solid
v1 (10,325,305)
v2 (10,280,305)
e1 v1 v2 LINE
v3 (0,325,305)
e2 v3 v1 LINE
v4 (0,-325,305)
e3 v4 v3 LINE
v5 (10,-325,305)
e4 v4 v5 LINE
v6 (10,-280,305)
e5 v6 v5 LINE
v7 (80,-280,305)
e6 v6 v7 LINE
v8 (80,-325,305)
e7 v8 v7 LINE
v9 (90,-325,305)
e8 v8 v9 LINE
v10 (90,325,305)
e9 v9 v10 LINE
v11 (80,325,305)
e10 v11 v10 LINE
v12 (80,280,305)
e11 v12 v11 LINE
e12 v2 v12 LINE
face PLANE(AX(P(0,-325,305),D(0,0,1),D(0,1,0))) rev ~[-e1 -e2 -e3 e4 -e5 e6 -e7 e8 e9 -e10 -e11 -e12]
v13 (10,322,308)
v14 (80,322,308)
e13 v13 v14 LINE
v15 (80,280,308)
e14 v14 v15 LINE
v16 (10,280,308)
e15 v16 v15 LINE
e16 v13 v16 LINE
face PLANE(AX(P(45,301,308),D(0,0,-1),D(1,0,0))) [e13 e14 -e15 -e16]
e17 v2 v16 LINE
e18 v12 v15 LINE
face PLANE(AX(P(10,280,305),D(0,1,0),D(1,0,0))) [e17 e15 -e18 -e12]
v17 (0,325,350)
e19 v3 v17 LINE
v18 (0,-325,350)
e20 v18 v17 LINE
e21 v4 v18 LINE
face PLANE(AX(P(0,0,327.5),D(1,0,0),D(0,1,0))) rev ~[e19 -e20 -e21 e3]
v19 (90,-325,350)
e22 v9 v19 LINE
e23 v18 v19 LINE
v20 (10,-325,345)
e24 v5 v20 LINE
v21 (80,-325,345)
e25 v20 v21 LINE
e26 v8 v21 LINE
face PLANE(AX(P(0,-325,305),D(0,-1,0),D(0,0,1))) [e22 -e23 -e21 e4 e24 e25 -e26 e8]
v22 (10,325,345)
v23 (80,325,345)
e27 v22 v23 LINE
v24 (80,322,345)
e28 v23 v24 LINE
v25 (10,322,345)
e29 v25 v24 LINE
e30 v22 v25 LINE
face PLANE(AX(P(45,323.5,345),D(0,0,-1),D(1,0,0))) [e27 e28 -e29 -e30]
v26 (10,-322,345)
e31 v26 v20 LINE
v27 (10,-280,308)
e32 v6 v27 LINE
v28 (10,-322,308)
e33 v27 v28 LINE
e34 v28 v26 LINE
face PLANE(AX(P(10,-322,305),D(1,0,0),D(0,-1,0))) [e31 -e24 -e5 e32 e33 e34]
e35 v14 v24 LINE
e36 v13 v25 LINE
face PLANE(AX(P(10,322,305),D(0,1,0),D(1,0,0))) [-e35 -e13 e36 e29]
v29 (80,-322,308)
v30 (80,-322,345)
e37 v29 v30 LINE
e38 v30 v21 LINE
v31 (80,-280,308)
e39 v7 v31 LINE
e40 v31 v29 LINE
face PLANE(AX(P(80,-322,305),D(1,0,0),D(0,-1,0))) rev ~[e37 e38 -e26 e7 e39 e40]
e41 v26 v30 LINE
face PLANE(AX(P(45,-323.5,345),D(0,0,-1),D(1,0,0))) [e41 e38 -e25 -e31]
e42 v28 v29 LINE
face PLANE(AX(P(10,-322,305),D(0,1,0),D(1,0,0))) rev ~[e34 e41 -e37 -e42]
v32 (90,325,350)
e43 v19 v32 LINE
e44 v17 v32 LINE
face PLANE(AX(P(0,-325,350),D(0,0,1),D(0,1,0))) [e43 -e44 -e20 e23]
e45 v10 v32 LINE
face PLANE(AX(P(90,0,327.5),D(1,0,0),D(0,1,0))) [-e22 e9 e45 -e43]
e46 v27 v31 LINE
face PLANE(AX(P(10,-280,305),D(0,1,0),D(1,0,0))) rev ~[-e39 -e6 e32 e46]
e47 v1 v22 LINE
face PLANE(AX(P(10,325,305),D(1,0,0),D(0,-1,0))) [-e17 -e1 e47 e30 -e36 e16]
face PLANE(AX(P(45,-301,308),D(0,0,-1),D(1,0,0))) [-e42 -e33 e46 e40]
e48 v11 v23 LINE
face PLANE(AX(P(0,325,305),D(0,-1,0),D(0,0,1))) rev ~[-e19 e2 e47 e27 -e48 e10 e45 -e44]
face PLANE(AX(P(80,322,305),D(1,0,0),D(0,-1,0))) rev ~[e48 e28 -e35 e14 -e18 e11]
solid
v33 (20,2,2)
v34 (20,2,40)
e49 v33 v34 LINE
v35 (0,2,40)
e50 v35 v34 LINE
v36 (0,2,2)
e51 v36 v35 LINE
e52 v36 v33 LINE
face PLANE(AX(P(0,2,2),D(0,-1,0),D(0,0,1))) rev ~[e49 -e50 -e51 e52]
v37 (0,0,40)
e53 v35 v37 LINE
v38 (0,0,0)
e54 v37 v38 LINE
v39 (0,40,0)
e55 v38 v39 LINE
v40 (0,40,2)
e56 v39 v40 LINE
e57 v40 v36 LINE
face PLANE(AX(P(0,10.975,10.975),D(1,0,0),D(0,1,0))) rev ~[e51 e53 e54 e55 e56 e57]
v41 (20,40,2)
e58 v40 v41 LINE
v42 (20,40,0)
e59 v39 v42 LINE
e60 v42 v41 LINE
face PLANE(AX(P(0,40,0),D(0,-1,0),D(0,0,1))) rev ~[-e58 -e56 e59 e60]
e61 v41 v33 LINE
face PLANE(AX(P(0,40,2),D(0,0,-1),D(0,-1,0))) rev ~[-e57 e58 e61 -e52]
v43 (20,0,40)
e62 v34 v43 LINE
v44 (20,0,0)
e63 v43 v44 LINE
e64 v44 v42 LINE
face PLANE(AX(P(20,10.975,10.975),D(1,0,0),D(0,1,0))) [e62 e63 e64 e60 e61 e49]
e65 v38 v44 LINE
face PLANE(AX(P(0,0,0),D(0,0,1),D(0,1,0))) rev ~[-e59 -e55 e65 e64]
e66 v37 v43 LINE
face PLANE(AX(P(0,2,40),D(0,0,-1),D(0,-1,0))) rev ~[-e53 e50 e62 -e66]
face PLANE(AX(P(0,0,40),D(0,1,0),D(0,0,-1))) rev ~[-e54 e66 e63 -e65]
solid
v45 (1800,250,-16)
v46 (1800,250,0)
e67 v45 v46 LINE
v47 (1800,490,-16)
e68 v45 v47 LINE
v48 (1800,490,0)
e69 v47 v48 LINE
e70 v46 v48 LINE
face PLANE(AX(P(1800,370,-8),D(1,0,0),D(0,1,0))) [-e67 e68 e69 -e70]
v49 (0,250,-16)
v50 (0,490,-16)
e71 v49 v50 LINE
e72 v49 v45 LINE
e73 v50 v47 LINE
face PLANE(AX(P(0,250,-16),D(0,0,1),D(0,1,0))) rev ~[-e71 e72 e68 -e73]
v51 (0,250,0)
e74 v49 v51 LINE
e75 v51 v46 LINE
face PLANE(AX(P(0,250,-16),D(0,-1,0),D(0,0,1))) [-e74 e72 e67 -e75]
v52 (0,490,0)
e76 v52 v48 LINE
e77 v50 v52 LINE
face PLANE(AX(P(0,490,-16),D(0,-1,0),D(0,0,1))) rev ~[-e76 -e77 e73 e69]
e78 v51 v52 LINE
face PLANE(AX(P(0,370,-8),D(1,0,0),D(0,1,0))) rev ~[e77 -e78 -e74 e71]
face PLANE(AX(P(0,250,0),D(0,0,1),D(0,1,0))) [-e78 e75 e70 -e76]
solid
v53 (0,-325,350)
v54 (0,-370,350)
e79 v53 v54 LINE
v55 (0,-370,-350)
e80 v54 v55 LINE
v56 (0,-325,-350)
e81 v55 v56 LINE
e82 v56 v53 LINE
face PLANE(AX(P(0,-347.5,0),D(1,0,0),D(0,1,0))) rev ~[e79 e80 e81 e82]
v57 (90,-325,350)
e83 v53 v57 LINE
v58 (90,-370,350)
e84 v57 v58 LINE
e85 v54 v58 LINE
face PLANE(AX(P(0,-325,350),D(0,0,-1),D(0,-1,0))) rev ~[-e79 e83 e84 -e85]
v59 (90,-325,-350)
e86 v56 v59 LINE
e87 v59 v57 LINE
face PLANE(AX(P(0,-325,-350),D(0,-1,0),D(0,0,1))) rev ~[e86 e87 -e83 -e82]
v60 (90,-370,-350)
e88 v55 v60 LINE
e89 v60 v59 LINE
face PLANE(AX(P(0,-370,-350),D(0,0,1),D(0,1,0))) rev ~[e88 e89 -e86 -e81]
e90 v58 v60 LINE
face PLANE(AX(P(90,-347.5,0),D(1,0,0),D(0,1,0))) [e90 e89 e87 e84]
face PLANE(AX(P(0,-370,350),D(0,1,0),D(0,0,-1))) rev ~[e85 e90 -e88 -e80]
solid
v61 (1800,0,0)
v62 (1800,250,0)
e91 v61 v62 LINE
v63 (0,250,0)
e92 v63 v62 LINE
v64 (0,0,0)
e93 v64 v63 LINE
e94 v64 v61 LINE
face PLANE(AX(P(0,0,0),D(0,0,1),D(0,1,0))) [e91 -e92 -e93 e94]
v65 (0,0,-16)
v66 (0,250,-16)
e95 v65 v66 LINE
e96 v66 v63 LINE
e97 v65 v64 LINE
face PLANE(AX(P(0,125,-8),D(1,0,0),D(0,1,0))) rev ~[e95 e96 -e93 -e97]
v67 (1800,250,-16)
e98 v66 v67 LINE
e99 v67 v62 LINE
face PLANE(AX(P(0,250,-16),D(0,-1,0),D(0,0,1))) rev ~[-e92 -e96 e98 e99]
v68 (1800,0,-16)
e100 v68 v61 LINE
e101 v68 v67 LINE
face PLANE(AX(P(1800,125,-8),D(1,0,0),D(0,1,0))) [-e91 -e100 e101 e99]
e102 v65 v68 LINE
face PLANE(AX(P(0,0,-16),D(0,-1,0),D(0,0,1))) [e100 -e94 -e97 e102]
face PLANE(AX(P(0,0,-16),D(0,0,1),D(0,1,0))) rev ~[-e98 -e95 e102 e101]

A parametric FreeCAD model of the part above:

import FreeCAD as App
import Part
import Sketcher
from FreeCAD import Vector

doc = App.newDocument("Part")
params = doc.addObject("Spreadsheet::Sheet", "Params")
for row, (alias, value) in enumerate([
    ("sketch1_width", "45 mm"),
    ("sketch1_height", "700 mm"),
    ("pad1_length", "90 mm"),
    ("sketch2_width", "650 mm"),
    ("sketch2_height", "45 mm"),
    ("pad2_length", "90 mm"),
    ("sketch3_width", "70 mm"),
    ("sketch3_height", "3 mm"),
    ("pocket1_length", "40 mm"),
    ("sketch4_width", "70 mm"),
    ("sketch4_height", "42 mm"),
    ("pocket2_length", "3 mm"),
    ("sketch5_width", "2 mm"),
    ("sketch5_width2", "40 mm"),
    ("pad3_length", "20 mm"),
    ("sketch6_width", "250 mm"),
    ("sketch6_height", "16 mm"),
    ("pad4_length", "1800 mm"),
    ("sketch7_width", "240 mm"),
    ("sketch7_height", "16 mm"),
    ("pad5_length", "1800 mm"),
], start=1):
    params.set(f"A{row}", alias)
    params.set(f"B{row}", "=" + value)
    params.setAlias(f"B{row}", alias)

body = doc.addObject("PartDesign::Body", "Body")

sketch1 = body.newObject("Sketcher::SketchObject", "Sketch")
sketch1.AttachmentSupport = (doc.getObject("YZ_Plane"), [""])
sketch1.MapMode = "FlatFace"
sketch1.addGeometry([
    Part.LineSegment(Vector(-325, 350, 0), Vector(-370, 350, 0)),
    Part.LineSegment(Vector(-370, 350, 0), Vector(-370, -350, 0)),
    Part.LineSegment(Vector(-370, -350, 0), Vector(-325, -350, 0)),
    Part.LineSegment(Vector(-325, -350, 0), Vector(-325, 350, 0)),
], False)
sketch1.addConstraint([
    Sketcher.Constraint("Coincident", 0, 2, 1, 1),
    Sketcher.Constraint("Coincident", 1, 2, 2, 1),
    Sketcher.Constraint("Coincident", 2, 2, 3, 1),
    Sketcher.Constraint("Coincident", 3, 2, 0, 1),
    Sketcher.Constraint("Horizontal", 0),
    Sketcher.Constraint("Vertical", 1),
    Sketcher.Constraint("Horizontal", 2),
    Sketcher.Constraint("Vertical", 3),
    Sketcher.Constraint("DistanceX", 0, 2, 0, 1, 45.0),
    Sketcher.Constraint("DistanceY", 1, 2, 1, 1, 700.0),
    Sketcher.Constraint("DistanceX", 0, 2, -1, 1, 370.0),
    Sketcher.Constraint("DistanceY", -1, 1, 0, 2, 350.0),
])
sketch1.setExpression("Constraints[8]", "Params.sketch1_width")
sketch1.setExpression("Constraints[9]", "Params.sketch1_height")
pad1 = body.newObject("PartDesign::Pad", "Pad")
pad1.Profile = sketch1
pad1.setExpression("Length", "Params.pad1_length")
body2 = doc.addObject("PartDesign::Body", "Body001")

sketch2 = body2.newObject("Sketcher::SketchObject", "Sketch001")
sketch2.AttachmentSupport = (doc.getObject("YZ_Plane001"), [""])
sketch2.MapMode = "FlatFace"
sketch2.addGeometry([
    Part.LineSegment(Vector(-325, 350, 0), Vector(-325, 305, 0)),
    Part.LineSegment(Vector(-325, 305, 0), Vector(325, 305, 0)),
    Part.LineSegment(Vector(325, 305, 0), Vector(325, 350, 0)),
    Part.LineSegment(Vector(325, 350, 0), Vector(-325, 350, 0)),
], False)
sketch2.addConstraint([
    Sketcher.Constraint("Coincident", 0, 2, 1, 1),
    Sketcher.Constraint("Coincident", 1, 2, 2, 1),
    Sketcher.Constraint("Coincident", 2, 2, 3, 1),
    Sketcher.Constraint("Coincident", 3, 2, 0, 1),
    Sketcher.Constraint("Vertical", 0),
    Sketcher.Constraint("Horizontal", 1),
    Sketcher.Constraint("Vertical", 2),
    Sketcher.Constraint("Horizontal", 3),
    Sketcher.Constraint("DistanceX", 1, 1, 1, 2, 650.0),
    Sketcher.Constraint("DistanceY", 0, 2, 0, 1, 45.0),
    Sketcher.Constraint("DistanceX", 0, 2, -1, 1, 325.0),
    Sketcher.Constraint("DistanceY", -1, 1, 0, 2, 305.0),
])
sketch2.setExpression("Constraints[8]", "Params.sketch2_width")
sketch2.setExpression("Constraints[9]", "Params.sketch2_height")
pad2 = body2.newObject("PartDesign::Pad", "Pad001")
pad2.Profile = sketch2
pad2.setExpression("Length", "Params.pad2_length")

sketch3 = body2.newObject("Sketcher::SketchObject", "Sketch002")
sketch3.AttachmentSupport = (doc.getObject("XY_Plane001"), [""])
sketch3.MapMode = "FlatFace"
sketch3.AttachmentOffset = App.Placement(Vector(0, 0, 305), App.Rotation())
sketch3.addGeometry([
    Part.LineSegment(Vector(10, -325, 0), Vector(10, -322, 0)),
    Part.LineSegment(Vector(10, -322, 0), Vector(80, -322, 0)),
    Part.LineSegment(Vector(80, -322, 0), Vector(80, -325, 0)),
    Part.LineSegment(Vector(80, -325, 0), Vector(10, -325, 0)),
    Part.LineSegment(Vector(10, 322, 0), Vector(10, 325, 0)),
    Part.LineSegment(Vector(10, 325, 0), Vector(80, 325, 0)),
    Part.LineSegment(Vector(80, 325, 0), Vector(80, 322, 0)),
    Part.LineSegment(Vector(80, 322, 0), Vector(10, 322, 0)),
], False)
sketch3.addConstraint([
    Sketcher.Constraint("Coincident", 0, 2, 1, 1),
    Sketcher.Constraint("Coincident", 1, 2, 2, 1),
    Sketcher.Constraint("Coincident", 2, 2, 3, 1),
    Sketcher.Constraint("Coincident", 3, 2, 0, 1),
    Sketcher.Constraint("Coincident", 4, 2, 5, 1),
    Sketcher.Constraint("Coincident", 5, 2, 6, 1),
    Sketcher.Constraint("Coincident", 6, 2, 7, 1),
    Sketcher.Constraint("Coincident", 7, 2, 4, 1),
    Sketcher.Constraint("Vertical", 0),
    Sketcher.Constraint("Horizontal", 1),
    Sketcher.Constraint("Vertical", 2),
    Sketcher.Constraint("Horizontal", 3),
    Sketcher.Constraint("Vertical", 4),
    Sketcher.Constraint("Horizontal", 5),
    Sketcher.Constraint("Vertical", 6),
    Sketcher.Constraint("Horizontal", 7),
    Sketcher.Constraint("Symmetric", 3, 2, 4, 2, -1),
    Sketcher.Constraint("Symmetric", 1, 2, 6, 2, -1),
    Sketcher.Constraint("DistanceX", 1, 1, 1, 2, 70.0),
    Sketcher.Constraint("DistanceY", 0, 1, 0, 2, 3.0),
    Sketcher.Constraint("DistanceX", -1, 1, 0, 2, 10.0),
    Sketcher.Constraint("DistanceY", 0, 2, -1, 1, 322.0),
])
sketch3.setExpression("Constraints[18]", "Params.sketch3_width")
sketch3.setExpression("Constraints[19]", "Params.sketch3_height")
pocket1 = body2.newObject("PartDesign::Pocket", "Pocket")
pocket1.Profile = sketch3
pocket1.setExpression("Length", "Params.pocket1_length")
pocket1.Reversed = True

sketch4 = body2.newObject("Sketcher::SketchObject", "Sketch003")
sketch4.AttachmentSupport = (doc.getObject("XY_Plane001"), [""])
sketch4.MapMode = "FlatFace"
sketch4.AttachmentOffset = App.Placement(Vector(0, 0, 305), App.Rotation())
sketch4.addGeometry([
    Part.LineSegment(Vector(10, -322, 0), Vector(10, -280, 0)),
    Part.LineSegment(Vector(10, -280, 0), Vector(80, -280, 0)),
    Part.LineSegment(Vector(80, -280, 0), Vector(80, -322, 0)),
    Part.LineSegment(Vector(80, -322, 0), Vector(10, -322, 0)),
    Part.LineSegment(Vector(10, 280, 0), Vector(10, 322, 0)),
    Part.LineSegment(Vector(10, 322, 0), Vector(80, 322, 0)),
    Part.LineSegment(Vector(80, 322, 0), Vector(80, 280, 0)),
    Part.LineSegment(Vector(80, 280, 0), Vector(10, 280, 0)),
], False)
sketch4.addConstraint([
    Sketcher.Constraint("Coincident", 0, 2, 1, 1),
    Sketcher.Constraint("Coincident", 1, 2, 2, 1),
    Sketcher.Constraint("Coincident", 2, 2, 3, 1),
    Sketcher.Constraint("Coincident", 3, 2, 0, 1),
    Sketcher.Constraint("Coincident", 4, 2, 5, 1),
    Sketcher.Constraint("Coincident", 5, 2, 6, 1),
    Sketcher.Constraint("Coincident", 6, 2, 7, 1),
    Sketcher.Constraint("Coincident", 7, 2, 4, 1),
    Sketcher.Constraint("Vertical", 0),
    Sketcher.Constraint("Horizontal", 1),
    Sketcher.Constraint("Vertical", 2),
    Sketcher.Constraint("Horizontal", 3),
    Sketcher.Constraint("Vertical", 4),
    Sketcher.Constraint("Horizontal", 5),
    Sketcher.Constraint("Vertical", 6),
    Sketcher.Constraint("Horizontal", 7),
    Sketcher.Constraint("Symmetric", 3, 2, 4, 2, -1),
    Sketcher.Constraint("Symmetric", 1, 2, 6, 2, -1),
    Sketcher.Constraint("DistanceX", 1, 1, 1, 2, 70.0),
    Sketcher.Constraint("DistanceY", 0, 1, 0, 2, 42.0),
    Sketcher.Constraint("DistanceX", -1, 1, 0, 2, 10.0),
    Sketcher.Constraint("DistanceY", 0, 2, -1, 1, 280.0),
])
sketch4.setExpression("Constraints[18]", "Params.sketch4_width")
sketch4.setExpression("Constraints[19]", "Params.sketch4_height")
pocket2 = body2.newObject("PartDesign::Pocket", "Pocket001")
pocket2.Profile = sketch4
pocket2.setExpression("Length", "Params.pocket2_length")
pocket2.Reversed = True
body3 = doc.addObject("PartDesign::Body", "Body002")

sketch5 = body3.newObject("Sketcher::SketchObject", "Sketch004")
sketch5.AttachmentSupport = (doc.getObject("YZ_Plane002"), [""])
sketch5.MapMode = "FlatFace"
sketch5.addGeometry([
    Part.LineSegment(Vector(2, 40, 0), Vector(0, 40, 0)),
    Part.LineSegment(Vector(0, 40, 0), Vector(0, 0, 0)),
    Part.LineSegment(Vector(0, 0, 0), Vector(40, 0, 0)),
    Part.LineSegment(Vector(40, 0, 0), Vector(40, 2, 0)),
    Part.LineSegment(Vector(40, 2, 0), Vector(2, 2, 0)),
    Part.LineSegment(Vector(2, 2, 0), Vector(2, 40, 0)),
], False)
sketch5.addConstraint([
    Sketcher.Constraint("Coincident", 0, 2, 1, 1),
    Sketcher.Constraint("Coincident", 1, 2, 2, 1),
    Sketcher.Constraint("Coincident", 2, 2, 3, 1),
    Sketcher.Constraint("Coincident", 3, 2, 4, 1),
    Sketcher.Constraint("Coincident", 4, 2, 5, 1),
    Sketcher.Constraint("Coincident", 5, 2, 0, 1),
    Sketcher.Constraint("Horizontal", 0),
    Sketcher.Constraint("Vertical", 1),
    Sketcher.Constraint("Horizontal", 2),
    Sketcher.Constraint("Vertical", 3),
    Sketcher.Constraint("Horizontal", 4),
    Sketcher.Constraint("Vertical", 5),
    Sketcher.Constraint("Coincident", 1, 2, -1, 1),
    Sketcher.Constraint("Equal", 2, 1),
    Sketcher.Constraint("Equal", 0, 3),
    Sketcher.Constraint("DistanceX", 0, 2, 0, 1, 2.0),
    Sketcher.Constraint("DistanceX", 2, 1, 2, 2, 40.0),
])
sketch5.setExpression("Constraints[15]", "Params.sketch5_width")
sketch5.setExpression("Constraints[16]", "Params.sketch5_width2")
pad3 = body3.newObject("PartDesign::Pad", "Pad002")
pad3.Profile = sketch5
pad3.setExpression("Length", "Params.pad3_length")
body4 = doc.addObject("PartDesign::Body", "Body003")

sketch6 = body4.newObject("Sketcher::SketchObject", "Sketch005")
sketch6.AttachmentSupport = (doc.getObject("YZ_Plane003"), [""])
sketch6.MapMode = "FlatFace"
sketch6.addGeometry([
    Part.LineSegment(Vector(0, 0, 0), Vector(0, -16, 0)),
    Part.LineSegment(Vector(0, -16, 0), Vector(250, -16, 0)),
    Part.LineSegment(Vector(250, -16, 0), Vector(250, 0, 0)),
    Part.LineSegment(Vector(250, 0, 0), Vector(0, 0, 0)),
], False)
sketch6.addConstraint([
    Sketcher.Constraint("Coincident", 0, 2, 1, 1),
    Sketcher.Constraint("Coincident", 1, 2, 2, 1),
    Sketcher.Constraint("Coincident", 2, 2, 3, 1),
    Sketcher.Constraint("Coincident", 3, 2, 0, 1),
    Sketcher.Constraint("Vertical", 0),
    Sketcher.Constraint("Horizontal", 1),
    Sketcher.Constraint("Vertical", 2),
    Sketcher.Constraint("Horizontal", 3),
    Sketcher.Constraint("Coincident", 3, 2, -1, 1),
    Sketcher.Constraint("DistanceX", 1, 1, 1, 2, 250.0),
    Sketcher.Constraint("DistanceY", 0, 2, 0, 1, 16.0),
])
sketch6.setExpression("Constraints[9]", "Params.sketch6_width")
sketch6.setExpression("Constraints[10]", "Params.sketch6_height")
pad4 = body4.newObject("PartDesign::Pad", "Pad003")
pad4.Profile = sketch6
pad4.setExpression("Length", "Params.pad4_length")
body5 = doc.addObject("PartDesign::Body", "Body004")

sketch7 = body5.newObject("Sketcher::SketchObject", "Sketch006")
sketch7.AttachmentSupport = (doc.getObject("YZ_Plane004"), [""])
sketch7.MapMode = "FlatFace"
sketch7.addGeometry([
    Part.LineSegment(Vector(250, 0, 0), Vector(250, -16, 0)),
    Part.LineSegment(Vector(250, -16, 0), Vector(490, -16, 0)),
    Part.LineSegment(Vector(490, -16, 0), Vector(490, 0, 0)),
    Part.LineSegment(Vector(490, 0, 0), Vector(250, 0, 0)),
], False)
sketch7.addConstraint([
    Sketcher.Constraint("Coincident", 0, 2, 1, 1),
    Sketcher.Constraint("Coincident", 1, 2, 2, 1),
    Sketcher.Constraint("Coincident", 2, 2, 3, 1),
    Sketcher.Constraint("Coincident", 3, 2, 0, 1),
    Sketcher.Constraint("Vertical", 0),
    Sketcher.Constraint("Horizontal", 1),
    Sketcher.Constraint("Vertical", 2),
    Sketcher.Constraint("Horizontal", 3),
    Sketcher.Constraint("PointOnObject", 2, 2, -1),
    Sketcher.Constraint("DistanceX", 1, 1, 1, 2, 240.0),
    Sketcher.Constraint("DistanceY", 0, 2, 0, 1, 16.0),
    Sketcher.Constraint("DistanceX", -1, 1, 0, 2, 250.0),
])
sketch7.setExpression("Constraints[9]", "Params.sketch7_width")
sketch7.setExpression("Constraints[10]", "Params.sketch7_height")
pad5 = body5.newObject("PartDesign::Pad", "Pad004")
pad5.Profile = sketch7
pad5.setExpression("Length", "Params.pad5_length")

doc.recompute()
